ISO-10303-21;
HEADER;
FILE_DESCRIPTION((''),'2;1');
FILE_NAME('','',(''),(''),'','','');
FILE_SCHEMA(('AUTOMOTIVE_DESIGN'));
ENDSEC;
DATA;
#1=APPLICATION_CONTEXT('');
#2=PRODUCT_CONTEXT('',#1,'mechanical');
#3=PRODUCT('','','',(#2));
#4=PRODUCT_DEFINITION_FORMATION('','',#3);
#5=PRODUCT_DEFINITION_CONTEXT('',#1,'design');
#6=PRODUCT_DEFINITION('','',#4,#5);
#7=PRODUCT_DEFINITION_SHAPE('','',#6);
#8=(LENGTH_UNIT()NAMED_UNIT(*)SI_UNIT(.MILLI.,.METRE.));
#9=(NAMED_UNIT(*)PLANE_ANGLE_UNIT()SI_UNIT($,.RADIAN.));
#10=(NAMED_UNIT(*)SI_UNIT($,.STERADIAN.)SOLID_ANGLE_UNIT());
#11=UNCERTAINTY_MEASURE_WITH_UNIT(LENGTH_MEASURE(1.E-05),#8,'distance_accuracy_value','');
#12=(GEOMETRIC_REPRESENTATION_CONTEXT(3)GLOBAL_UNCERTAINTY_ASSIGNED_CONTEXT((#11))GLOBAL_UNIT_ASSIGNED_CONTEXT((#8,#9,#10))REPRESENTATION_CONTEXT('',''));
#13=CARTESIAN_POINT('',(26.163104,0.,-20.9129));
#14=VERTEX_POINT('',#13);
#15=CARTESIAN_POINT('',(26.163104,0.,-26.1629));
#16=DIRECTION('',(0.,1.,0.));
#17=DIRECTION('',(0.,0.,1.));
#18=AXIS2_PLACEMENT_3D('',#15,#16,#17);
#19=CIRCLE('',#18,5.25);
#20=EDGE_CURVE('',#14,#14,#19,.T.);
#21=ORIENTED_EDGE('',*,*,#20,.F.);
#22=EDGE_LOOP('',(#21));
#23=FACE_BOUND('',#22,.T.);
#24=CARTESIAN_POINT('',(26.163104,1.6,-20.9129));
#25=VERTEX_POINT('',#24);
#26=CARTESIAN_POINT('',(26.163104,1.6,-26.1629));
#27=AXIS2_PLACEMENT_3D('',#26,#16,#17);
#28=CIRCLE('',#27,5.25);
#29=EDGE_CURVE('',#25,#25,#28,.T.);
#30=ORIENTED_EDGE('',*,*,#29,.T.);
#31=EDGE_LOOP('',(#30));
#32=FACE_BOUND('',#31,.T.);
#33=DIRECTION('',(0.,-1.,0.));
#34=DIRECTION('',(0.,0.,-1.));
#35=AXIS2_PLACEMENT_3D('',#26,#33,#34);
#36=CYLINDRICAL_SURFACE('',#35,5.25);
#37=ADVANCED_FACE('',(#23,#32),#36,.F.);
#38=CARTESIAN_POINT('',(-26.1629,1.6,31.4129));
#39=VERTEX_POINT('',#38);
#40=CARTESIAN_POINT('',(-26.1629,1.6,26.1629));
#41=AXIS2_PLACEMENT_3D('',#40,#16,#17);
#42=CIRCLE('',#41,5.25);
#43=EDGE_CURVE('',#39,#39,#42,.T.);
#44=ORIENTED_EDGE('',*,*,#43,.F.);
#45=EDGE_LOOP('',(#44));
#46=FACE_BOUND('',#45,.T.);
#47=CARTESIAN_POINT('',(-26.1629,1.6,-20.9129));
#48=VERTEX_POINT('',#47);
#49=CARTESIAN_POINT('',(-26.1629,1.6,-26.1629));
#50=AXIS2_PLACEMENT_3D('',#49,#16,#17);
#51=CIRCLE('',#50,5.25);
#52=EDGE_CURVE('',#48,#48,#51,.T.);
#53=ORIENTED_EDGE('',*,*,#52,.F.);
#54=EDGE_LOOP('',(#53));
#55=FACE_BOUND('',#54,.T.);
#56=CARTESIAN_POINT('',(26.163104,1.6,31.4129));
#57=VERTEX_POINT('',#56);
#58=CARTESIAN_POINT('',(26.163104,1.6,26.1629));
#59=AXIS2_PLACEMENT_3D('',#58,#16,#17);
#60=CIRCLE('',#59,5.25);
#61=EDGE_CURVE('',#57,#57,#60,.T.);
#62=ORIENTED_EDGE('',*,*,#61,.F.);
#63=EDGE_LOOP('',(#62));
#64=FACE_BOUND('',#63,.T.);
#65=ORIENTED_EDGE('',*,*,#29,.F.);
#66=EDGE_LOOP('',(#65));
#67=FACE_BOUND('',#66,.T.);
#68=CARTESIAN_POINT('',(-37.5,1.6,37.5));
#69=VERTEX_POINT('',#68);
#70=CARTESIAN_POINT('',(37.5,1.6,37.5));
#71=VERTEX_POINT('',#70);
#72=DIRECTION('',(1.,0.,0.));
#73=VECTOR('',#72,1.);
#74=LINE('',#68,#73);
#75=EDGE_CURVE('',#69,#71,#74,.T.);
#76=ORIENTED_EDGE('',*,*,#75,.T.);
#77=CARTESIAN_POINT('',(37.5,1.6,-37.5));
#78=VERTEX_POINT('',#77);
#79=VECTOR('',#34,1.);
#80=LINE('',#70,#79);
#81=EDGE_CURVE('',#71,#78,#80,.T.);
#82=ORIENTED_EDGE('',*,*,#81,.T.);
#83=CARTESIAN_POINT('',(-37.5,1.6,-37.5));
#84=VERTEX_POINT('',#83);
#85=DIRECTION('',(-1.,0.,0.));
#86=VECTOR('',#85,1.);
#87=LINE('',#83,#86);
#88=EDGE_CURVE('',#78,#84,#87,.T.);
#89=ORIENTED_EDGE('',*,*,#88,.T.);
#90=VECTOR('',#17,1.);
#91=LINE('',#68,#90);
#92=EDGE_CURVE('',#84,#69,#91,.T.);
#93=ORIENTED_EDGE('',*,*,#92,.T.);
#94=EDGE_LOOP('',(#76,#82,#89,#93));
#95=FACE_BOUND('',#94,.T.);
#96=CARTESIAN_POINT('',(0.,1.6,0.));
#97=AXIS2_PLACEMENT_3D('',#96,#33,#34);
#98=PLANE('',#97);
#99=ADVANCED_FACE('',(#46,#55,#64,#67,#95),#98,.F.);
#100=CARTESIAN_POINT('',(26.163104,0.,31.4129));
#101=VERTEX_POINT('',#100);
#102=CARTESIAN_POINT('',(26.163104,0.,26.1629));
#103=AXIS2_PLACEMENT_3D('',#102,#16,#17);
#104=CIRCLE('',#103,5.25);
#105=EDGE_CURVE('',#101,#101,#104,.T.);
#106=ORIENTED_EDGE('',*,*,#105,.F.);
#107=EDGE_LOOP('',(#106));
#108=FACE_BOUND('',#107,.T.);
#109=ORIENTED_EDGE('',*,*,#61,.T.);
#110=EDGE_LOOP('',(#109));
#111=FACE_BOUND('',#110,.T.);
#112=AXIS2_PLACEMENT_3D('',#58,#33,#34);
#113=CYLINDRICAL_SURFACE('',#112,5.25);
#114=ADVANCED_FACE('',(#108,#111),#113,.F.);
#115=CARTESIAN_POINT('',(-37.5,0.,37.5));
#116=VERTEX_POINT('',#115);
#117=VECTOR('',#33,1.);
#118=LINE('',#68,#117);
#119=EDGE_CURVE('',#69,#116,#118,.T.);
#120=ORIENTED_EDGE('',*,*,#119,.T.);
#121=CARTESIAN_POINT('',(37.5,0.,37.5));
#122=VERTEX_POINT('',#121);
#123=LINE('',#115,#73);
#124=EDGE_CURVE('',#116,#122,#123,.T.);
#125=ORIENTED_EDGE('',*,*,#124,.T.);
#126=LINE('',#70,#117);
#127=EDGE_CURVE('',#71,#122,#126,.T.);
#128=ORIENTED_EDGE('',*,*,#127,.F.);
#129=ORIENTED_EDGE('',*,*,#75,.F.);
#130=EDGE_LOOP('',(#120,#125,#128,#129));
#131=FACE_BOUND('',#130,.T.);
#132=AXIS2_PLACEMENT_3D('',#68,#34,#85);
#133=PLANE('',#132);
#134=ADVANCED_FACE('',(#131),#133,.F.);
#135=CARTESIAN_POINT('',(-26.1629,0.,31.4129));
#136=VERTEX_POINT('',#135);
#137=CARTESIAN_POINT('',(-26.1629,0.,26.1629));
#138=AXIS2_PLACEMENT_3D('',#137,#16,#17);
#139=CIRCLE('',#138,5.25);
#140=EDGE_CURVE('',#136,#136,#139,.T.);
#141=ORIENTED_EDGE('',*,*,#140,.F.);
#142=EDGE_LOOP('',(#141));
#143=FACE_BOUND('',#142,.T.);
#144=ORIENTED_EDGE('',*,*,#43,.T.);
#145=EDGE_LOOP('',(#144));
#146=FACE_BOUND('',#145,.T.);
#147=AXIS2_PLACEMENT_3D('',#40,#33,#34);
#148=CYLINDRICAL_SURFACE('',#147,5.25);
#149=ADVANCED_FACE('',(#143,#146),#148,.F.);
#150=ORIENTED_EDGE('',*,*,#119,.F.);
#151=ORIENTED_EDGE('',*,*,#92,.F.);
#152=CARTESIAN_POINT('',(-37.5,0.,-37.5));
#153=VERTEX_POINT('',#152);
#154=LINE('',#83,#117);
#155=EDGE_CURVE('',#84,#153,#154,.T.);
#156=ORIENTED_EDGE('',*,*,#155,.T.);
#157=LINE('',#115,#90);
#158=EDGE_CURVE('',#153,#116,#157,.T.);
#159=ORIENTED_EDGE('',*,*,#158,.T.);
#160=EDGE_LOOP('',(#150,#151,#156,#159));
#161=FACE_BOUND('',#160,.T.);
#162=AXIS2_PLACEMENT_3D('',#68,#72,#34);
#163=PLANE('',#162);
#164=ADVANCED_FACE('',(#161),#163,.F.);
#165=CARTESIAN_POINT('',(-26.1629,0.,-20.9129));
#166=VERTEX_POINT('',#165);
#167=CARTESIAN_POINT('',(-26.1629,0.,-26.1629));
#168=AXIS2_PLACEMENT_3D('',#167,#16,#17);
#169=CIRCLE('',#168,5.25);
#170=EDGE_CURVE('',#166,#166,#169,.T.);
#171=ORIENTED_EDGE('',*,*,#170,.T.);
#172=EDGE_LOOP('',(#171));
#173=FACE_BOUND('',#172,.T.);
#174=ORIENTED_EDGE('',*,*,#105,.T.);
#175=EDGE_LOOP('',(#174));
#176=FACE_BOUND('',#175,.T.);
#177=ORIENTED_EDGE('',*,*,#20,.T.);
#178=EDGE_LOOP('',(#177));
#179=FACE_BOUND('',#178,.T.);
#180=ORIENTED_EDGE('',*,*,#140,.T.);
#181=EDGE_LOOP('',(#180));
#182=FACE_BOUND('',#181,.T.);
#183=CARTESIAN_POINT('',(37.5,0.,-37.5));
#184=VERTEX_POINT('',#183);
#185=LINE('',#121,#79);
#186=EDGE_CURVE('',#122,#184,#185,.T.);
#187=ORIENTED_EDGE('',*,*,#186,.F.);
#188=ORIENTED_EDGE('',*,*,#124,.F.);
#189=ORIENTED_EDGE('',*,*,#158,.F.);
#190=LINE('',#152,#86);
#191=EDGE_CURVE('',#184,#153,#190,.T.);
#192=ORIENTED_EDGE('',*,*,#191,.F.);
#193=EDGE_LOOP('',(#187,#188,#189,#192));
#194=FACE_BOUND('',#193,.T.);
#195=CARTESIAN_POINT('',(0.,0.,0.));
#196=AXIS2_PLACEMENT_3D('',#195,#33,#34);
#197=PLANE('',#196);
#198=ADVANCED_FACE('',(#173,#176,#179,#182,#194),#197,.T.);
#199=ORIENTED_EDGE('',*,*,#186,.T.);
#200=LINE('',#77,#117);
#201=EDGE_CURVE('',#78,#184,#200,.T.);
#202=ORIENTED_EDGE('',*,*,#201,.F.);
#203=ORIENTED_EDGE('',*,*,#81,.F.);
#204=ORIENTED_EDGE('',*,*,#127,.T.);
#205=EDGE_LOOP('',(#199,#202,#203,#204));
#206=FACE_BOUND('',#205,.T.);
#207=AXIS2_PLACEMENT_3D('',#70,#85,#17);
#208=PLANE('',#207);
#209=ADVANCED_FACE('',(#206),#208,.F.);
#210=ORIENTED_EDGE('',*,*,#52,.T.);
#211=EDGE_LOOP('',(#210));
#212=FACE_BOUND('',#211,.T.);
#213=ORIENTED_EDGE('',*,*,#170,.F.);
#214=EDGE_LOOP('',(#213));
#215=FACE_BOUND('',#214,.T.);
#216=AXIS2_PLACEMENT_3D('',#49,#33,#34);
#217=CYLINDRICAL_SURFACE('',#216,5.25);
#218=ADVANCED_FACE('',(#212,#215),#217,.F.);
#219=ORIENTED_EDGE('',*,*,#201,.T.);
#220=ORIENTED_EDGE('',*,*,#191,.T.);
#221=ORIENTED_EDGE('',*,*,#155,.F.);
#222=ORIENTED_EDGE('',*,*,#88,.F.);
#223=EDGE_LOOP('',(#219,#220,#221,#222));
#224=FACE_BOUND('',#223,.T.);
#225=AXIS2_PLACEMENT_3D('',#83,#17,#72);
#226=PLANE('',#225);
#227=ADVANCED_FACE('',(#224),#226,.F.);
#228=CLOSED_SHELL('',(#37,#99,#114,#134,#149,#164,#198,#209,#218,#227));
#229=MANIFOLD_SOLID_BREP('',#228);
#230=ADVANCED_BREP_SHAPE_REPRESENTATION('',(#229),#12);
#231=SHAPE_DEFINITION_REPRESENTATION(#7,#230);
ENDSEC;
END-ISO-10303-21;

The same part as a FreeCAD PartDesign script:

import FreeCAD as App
import Part
import Sketcher

V = App.Vector


def add_polygon(sketch, points):
    """Adds a closed chain of lines whose ends are joined by coincident constraints."""
    first, n = sketch.GeometryCount, len(points)
    for a, b in zip(points, points[1:] + points[:1]):
        sketch.addGeometry(Part.LineSegment(App.Vector(*a, 0), App.Vector(*b, 0)), False)
    for i in range(n):
        sketch.addConstraint(Sketcher.Constraint("Coincident", first + i, 2, first + (i + 1) % n, 1))

doc = App.newDocument("Part")
body = doc.addObject("PartDesign::Body", "Body")

# Sketch on XZ plane
sketch1 = body.newObject("Sketcher::SketchObject", "Sketch")
sketch1.AttachmentSupport = (doc.getObject("XZ_Plane"), [""])
sketch1.MapMode = "FlatFace"
add_polygon(sketch1, [(-38, -38), (-38, 38), (38, 38), (38, -38)])  # lines 0-3
sketch1.addGeometry(Part.Circle(V(-26, 26, 0), V(0, 0, 1), 5), False)  # 4
sketch1.addGeometry(Part.Circle(V(26, 26, 0), V(0, 0, 1), 5), False)  # 5
sketch1.addGeometry(Part.Circle(V(-26, -26, 0), V(0, 0, 1), 5), False)  # 6
sketch1.addGeometry(Part.Circle(V(26, -26, 0), V(0, 0, 1), 5), False)  # 7
sketch1.addConstraint([
    Sketcher.Constraint("Vertical", 0),
    Sketcher.Constraint("Horizontal", 1),
    Sketcher.Constraint("Vertical", 2),
    Sketcher.Constraint("Horizontal", 3),
    Sketcher.Constraint("Equal", 4, 5),
    Sketcher.Constraint("Equal", 5, 6),
    Sketcher.Constraint("Equal", 6, 7),
    Sketcher.Constraint("Symmetric", 0, 2, 2, 2, -1, 1),
    Sketcher.Constraint("Symmetric", 4, 3, 6, 3, -1),
    Sketcher.Constraint("Symmetric", 5, 3, 7, 3, -1),
    Sketcher.Constraint("Horizontal", 4, 3, 5, 3),
    Sketcher.Constraint("Equal", 3, 0),
    Sketcher.Constraint("Diameter", 4, 10.5),
    Sketcher.Constraint("DistanceX", 1, 1, 1, 2, 75.0),
    Sketcher.Constraint("DistanceX", 4, 3, -1, 1, 26.1629),
    Sketcher.Constraint("DistanceY", -1, 1, 4, 3, 26.1629),
    Sketcher.Constraint("DistanceX", -1, 1, 5, 3, 26.163104),
])
pad1 = body.newObject("PartDesign::Pad", "Pad")
pad1.Profile = sketch1
pad1.Length = 1.6
pad1.Reversed = True

doc.recompute()
